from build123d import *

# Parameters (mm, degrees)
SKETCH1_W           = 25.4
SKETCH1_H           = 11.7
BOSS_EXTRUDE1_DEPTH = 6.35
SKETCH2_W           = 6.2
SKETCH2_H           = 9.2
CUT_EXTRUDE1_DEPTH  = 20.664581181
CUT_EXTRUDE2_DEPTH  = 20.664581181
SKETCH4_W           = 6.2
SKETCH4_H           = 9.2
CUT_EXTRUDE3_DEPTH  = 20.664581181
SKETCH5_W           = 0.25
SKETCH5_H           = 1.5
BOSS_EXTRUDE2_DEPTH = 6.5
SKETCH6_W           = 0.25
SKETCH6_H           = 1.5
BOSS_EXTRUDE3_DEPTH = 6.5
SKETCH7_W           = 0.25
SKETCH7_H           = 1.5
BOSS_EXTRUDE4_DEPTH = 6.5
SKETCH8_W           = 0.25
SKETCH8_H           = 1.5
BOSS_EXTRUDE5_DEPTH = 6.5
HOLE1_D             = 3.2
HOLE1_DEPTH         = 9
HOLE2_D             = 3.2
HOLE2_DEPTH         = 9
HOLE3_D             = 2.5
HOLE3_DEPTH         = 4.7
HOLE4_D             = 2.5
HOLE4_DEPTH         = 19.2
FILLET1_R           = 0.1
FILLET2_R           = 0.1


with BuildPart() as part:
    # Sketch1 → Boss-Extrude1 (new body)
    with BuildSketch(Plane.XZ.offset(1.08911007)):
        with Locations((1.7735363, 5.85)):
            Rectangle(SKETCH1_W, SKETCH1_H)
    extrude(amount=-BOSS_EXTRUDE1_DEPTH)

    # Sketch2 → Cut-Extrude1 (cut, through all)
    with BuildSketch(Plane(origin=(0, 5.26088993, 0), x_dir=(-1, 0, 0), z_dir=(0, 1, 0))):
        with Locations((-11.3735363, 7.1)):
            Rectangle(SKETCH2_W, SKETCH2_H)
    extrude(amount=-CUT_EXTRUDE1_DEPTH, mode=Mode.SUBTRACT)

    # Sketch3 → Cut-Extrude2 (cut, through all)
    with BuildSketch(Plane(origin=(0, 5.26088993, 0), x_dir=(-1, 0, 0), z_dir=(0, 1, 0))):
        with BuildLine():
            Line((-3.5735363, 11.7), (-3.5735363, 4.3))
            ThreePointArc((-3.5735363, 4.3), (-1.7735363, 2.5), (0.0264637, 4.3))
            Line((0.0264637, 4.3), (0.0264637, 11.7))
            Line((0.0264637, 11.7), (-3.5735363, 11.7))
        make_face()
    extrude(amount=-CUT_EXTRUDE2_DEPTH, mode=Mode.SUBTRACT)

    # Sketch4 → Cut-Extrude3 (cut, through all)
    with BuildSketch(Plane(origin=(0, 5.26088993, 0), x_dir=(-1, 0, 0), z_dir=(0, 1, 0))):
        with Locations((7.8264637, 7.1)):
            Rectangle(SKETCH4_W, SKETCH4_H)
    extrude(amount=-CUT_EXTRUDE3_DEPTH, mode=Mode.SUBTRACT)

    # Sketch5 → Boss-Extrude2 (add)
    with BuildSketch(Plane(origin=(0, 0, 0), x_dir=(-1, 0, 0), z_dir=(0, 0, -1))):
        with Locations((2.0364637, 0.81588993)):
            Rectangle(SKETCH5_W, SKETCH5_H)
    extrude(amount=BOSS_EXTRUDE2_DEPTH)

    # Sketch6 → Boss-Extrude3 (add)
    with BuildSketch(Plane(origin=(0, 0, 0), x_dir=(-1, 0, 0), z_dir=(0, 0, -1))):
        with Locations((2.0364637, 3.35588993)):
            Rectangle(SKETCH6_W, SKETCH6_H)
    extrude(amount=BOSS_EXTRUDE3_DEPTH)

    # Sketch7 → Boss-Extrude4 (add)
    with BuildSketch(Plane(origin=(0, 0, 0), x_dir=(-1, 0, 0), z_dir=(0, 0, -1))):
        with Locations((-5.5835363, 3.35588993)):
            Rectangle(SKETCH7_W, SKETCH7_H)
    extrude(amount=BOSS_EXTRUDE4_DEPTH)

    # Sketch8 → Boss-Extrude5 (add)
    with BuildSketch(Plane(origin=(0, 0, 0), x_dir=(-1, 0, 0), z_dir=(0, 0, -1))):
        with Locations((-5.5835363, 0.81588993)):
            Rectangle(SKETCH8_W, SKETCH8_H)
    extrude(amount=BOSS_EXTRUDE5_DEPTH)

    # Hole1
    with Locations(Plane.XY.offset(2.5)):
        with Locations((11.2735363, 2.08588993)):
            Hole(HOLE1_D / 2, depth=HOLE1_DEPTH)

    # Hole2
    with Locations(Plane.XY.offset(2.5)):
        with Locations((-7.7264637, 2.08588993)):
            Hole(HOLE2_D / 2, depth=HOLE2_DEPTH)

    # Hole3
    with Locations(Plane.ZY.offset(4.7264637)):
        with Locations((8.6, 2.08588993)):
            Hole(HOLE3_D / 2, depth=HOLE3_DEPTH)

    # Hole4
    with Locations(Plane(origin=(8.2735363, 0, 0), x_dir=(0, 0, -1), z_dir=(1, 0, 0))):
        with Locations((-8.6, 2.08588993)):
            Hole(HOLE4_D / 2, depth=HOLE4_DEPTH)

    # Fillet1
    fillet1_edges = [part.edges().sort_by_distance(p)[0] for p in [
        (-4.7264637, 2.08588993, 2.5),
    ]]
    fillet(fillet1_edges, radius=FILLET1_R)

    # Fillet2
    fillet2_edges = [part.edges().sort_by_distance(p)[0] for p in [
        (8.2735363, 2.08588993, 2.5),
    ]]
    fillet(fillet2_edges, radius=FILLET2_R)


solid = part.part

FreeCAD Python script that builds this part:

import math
import FreeCAD as App
import Part
import Sketcher


def edges_at(feature, points):
    """Names of the edges that pass closest to the given points."""
    edges = feature.Shape.Edges
    near = lambda p: min(range(len(edges)), key=lambda i: edges[i].distToShape(Part.Vertex(*p))[0])
    return sorted({f"Edge{near(p) + 1}" for p in points})

doc = App.newDocument("Part")
body = doc.addObject("PartDesign::Body", "Body")

# Sketch on XZ plane
sketch1 = body.newObject("Sketcher::SketchObject", "Sketch")
sketch1.AttachmentSupport = (doc.getObject("XZ_Plane"), [""])
sketch1.MapMode = "FlatFace"
sketch1.AttachmentOffset = App.Placement(App.Vector(0, 0, 1.08911), App.Rotation())
sketch1.addGeometry(Part.LineSegment(App.Vector(-11, 12, 0), App.Vector(-11, 0, 0)), False)
sketch1.addGeometry(Part.LineSegment(App.Vector(-11, 0, 0), App.Vector(14, 0, 0)), False)
sketch1.addGeometry(Part.LineSegment(App.Vector(14, 0, 0), App.Vector(14, 12, 0)), False)
sketch1.addGeometry(Part.LineSegment(App.Vector(14, 12, 0), App.Vector(-11, 12, 0)), False)
sketch1.addConstraint(Sketcher.Constraint("Coincident", 0, 2, 1, 1))
sketch1.addConstraint(Sketcher.Constraint("Coincident", 1, 2, 2, 1))
sketch1.addConstraint(Sketcher.Constraint("Coincident", 2, 2, 3, 1))
sketch1.addConstraint(Sketcher.Constraint("Coincident", 3, 2, 0, 1))
sketch1.addConstraint(Sketcher.Constraint("Vertical", 0))
sketch1.addConstraint(Sketcher.Constraint("Horizontal", 1))
sketch1.addConstraint(Sketcher.Constraint("Vertical", 2))
sketch1.addConstraint(Sketcher.Constraint("Horizontal", 3))
sketch1.addConstraint(Sketcher.Constraint("PointOnObject", 0, 2, -1))
sketch1.addConstraint(Sketcher.Constraint("DistanceX", 1, 1, 1, 2, 25.4))
sketch1.addConstraint(Sketcher.Constraint("DistanceY", 0, 2, 0, 1, 11.7))
sketch1.addConstraint(Sketcher.Constraint("DistanceX", 0, 2, -1, 1, 10.926464))
pad1 = body.newObject("PartDesign::Pad", "Pad")
pad1.Profile = sketch1
pad1.Length = 6.35
pad1.Reversed = True

# Sketch on XZ plane
sketch2 = body.newObject("Sketcher::SketchObject", "Sketch001")
sketch2.AttachmentSupport = (doc.getObject("XZ_Plane"), [""])
sketch2.MapMode = "FlatFace"
sketch2.AttachmentOffset = App.Placement(App.Vector(0, 0, -5.26089), App.Rotation())
sketch2.addGeometry(Part.LineSegment(App.Vector(14, 12, 0), App.Vector(14, 2, 0)), False)
sketch2.addGeometry(Part.LineSegment(App.Vector(14, 2, 0), App.Vector(8, 2, 0)), False)
sketch2.addGeometry(Part.LineSegment(App.Vector(8, 2, 0), App.Vector(8, 12, 0)), False)
sketch2.addGeometry(Part.LineSegment(App.Vector(8, 12, 0), App.Vector(14, 12, 0)), False)
sketch2.addConstraint(Sketcher.Constraint("Coincident", 0, 2, 1, 1))
sketch2.addConstraint(Sketcher.Constraint("Coincident", 1, 2, 2, 1))
sketch2.addConstraint(Sketcher.Constraint("Coincident", 2, 2, 3, 1))
sketch2.addConstraint(Sketcher.Constraint("Coincident", 3, 2, 0, 1))
sketch2.addConstraint(Sketcher.Constraint("Vertical", 0))
sketch2.addConstraint(Sketcher.Constraint("Horizontal", 1))
sketch2.addConstraint(Sketcher.Constraint("Vertical", 2))
sketch2.addConstraint(Sketcher.Constraint("Horizontal", 3))
sketch2.addConstraint(Sketcher.Constraint("DistanceX", 1, 2, 1, 1, 6.2))
sketch2.addConstraint(Sketcher.Constraint("DistanceY", 0, 2, 0, 1, 9.2))
sketch2.addConstraint(Sketcher.Constraint("DistanceY", -1, 1, 0, 2, 2.5))
sketch2.addConstraint(Sketcher.Constraint("DistanceX", -1, 1, 0, 2, 14.473536))
pocket1 = body.newObject("PartDesign::Pocket", "Pocket")
pocket1.Profile = sketch2
pocket1.Type = "ThroughAll"
pocket1.Reversed = True

# Sketch on XZ plane
sketch3 = body.newObject("Sketcher::SketchObject", "Sketch002")
sketch3.AttachmentSupport = (doc.getObject("XZ_Plane"), [""])
sketch3.MapMode = "FlatFace"
sketch3.AttachmentOffset = App.Placement(App.Vector(0, 0, -5.26089), App.Rotation())
sketch3.addGeometry(Part.LineSegment(App.Vector(3.6, 11.7, 0), App.Vector(3.6, 4.3, 0)), False)
sketch3.addGeometry(Part.ArcOfCircle(Part.Circle(App.Vector(1.8, 4.3, 0), App.Vector(0, 0, 1), 1.8), math.radians(180), math.radians(360)), False)
sketch3.addGeometry(Part.LineSegment(App.Vector(0, 4.3, 0), App.Vector(0, 11.7, 0)), False)
sketch3.addGeometry(Part.LineSegment(App.Vector(0, 11.7, 0), App.Vector(3.6, 11.7, 0)), False)
sketch3.addConstraint(Sketcher.Constraint("Tangent", 0, 2, 1, 2))
sketch3.addConstraint(Sketcher.Constraint("Tangent", 1, 1, 2, 1))
sketch3.addConstraint(Sketcher.Constraint("Coincident", 2, 2, 3, 1))
sketch3.addConstraint(Sketcher.Constraint("Coincident", 3, 2, 0, 1))
sketch3.addConstraint(Sketcher.Constraint("Vertical", 0))
sketch3.addConstraint(Sketcher.Constraint("Vertical", 2))
sketch3.addConstraint(Sketcher.Constraint("Horizontal", 3))
sketch3.addConstraint(Sketcher.Constraint("Radius", 1, 1.8))
sketch3.addConstraint(Sketcher.Constraint("DistanceY", 0, 2, 0, 1, 7.4))
sketch3.addConstraint(Sketcher.Constraint("DistanceY", -1, 1, 1, 3, 4.3))
sketch3.addConstraint(Sketcher.Constraint("DistanceX", -1, 1, 1, 3, 1.773536))
pocket2 = body.newObject("PartDesign::Pocket", "Pocket001")
pocket2.Profile = sketch3
pocket2.Type = "ThroughAll"
pocket2.Reversed = True

# Sketch on XZ plane
sketch4 = body.newObject("Sketcher::SketchObject", "Sketch003")
sketch4.AttachmentSupport = (doc.getObject("XZ_Plane"), [""])
sketch4.MapMode = "FlatFace"
sketch4.AttachmentOffset = App.Placement(App.Vector(0, 0, -5.26089), App.Rotation())
sketch4.addGeometry(Part.LineSegment(App.Vector(-5, 12, 0), App.Vector(-5, 2, 0)), False)
sketch4.addGeometry(Part.LineSegment(App.Vector(-5, 2, 0), App.Vector(-11, 2, 0)), False)
sketch4.addGeometry(Part.LineSegment(App.Vector(-11, 2, 0), App.Vector(-11, 12, 0)), False)
sketch4.addGeometry(Part.LineSegment(App.Vector(-11, 12, 0), App.Vector(-5, 12, 0)), False)
sketch4.addConstraint(Sketcher.Constraint("Coincident", 0, 2, 1, 1))
sketch4.addConstraint(Sketcher.Constraint("Coincident", 1, 2, 2, 1))
sketch4.addConstraint(Sketcher.Constraint("Coincident", 2, 2, 3, 1))
sketch4.addConstraint(Sketcher.Constraint("Coincident", 3, 2, 0, 1))
sketch4.addConstraint(Sketcher.Constraint("Vertical", 0))
sketch4.addConstraint(Sketcher.Constraint("Horizontal", 1))
sketch4.addConstraint(Sketcher.Constraint("Vertical", 2))
sketch4.addConstraint(Sketcher.Constraint("Horizontal", 3))
sketch4.addConstraint(Sketcher.Constraint("DistanceX", 1, 2, 1, 1, 6.2))
sketch4.addConstraint(Sketcher.Constraint("DistanceY", 0, 2, 0, 1, 9.2))
sketch4.addConstraint(Sketcher.Constraint("DistanceY", -1, 1, 0, 2, 2.5))
sketch4.addConstraint(Sketcher.Constraint("DistanceX", 0, 2, -1, 1, 4.726464))
pocket3 = body.newObject("PartDesign::Pocket", "Pocket002")
pocket3.Profile = sketch4
pocket3.Type = "ThroughAll"
pocket3.Reversed = True

# Sketch on XY plane
sketch5 = body.newObject("Sketcher::SketchObject", "Sketch004")
sketch5.AttachmentSupport = (doc.getObject("XY_Plane"), [""])
sketch5.MapMode = "FlatFace"
sketch5.addGeometry(Part.LineSegment(App.Vector(-1.91, 1.57, 0), App.Vector(-1.91, 0.07, 0)), False)
sketch5.addGeometry(Part.LineSegment(App.Vector(-1.91, 0.07, 0), App.Vector(-2.16, 0.07, 0)), False)
sketch5.addGeometry(Part.LineSegment(App.Vector(-2.16, 0.07, 0), App.Vector(-2.16, 1.57, 0)), False)
sketch5.addGeometry(Part.LineSegment(App.Vector(-2.16, 1.57, 0), App.Vector(-1.91, 1.57, 0)), False)
sketch5.addConstraint(Sketcher.Constraint("Coincident", 0, 2, 1, 1))
sketch5.addConstraint(Sketcher.Constraint("Coincident", 1, 2, 2, 1))
sketch5.addConstraint(Sketcher.Constraint("Coincident", 2, 2, 3, 1))
sketch5.addConstraint(Sketcher.Constraint("Coincident", 3, 2, 0, 1))
sketch5.addConstraint(Sketcher.Constraint("Vertical", 0))
sketch5.addConstraint(Sketcher.Constraint("Horizontal", 1))
sketch5.addConstraint(Sketcher.Constraint("Vertical", 2))
sketch5.addConstraint(Sketcher.Constraint("Horizontal", 3))
sketch5.addConstraint(Sketcher.Constraint("DistanceY", 0, 2, 0, 1, 1.5))
sketch5.addConstraint(Sketcher.Constraint("DistanceX", 1, 2, 1, 1, 0.25))
sketch5.addConstraint(Sketcher.Constraint("DistanceY", -1, 1, 0, 2, 0.06589))
sketch5.addConstraint(Sketcher.Constraint("DistanceX", 0, 2, -1, 1, 1.911464))
pad2 = body.newObject("PartDesign::Pad", "Pad001")
pad2.Profile = sketch5
pad2.Length = 6.5
pad2.Reversed = True

# Sketch on XY plane
sketch6 = body.newObject("Sketcher::SketchObject", "Sketch005")
sketch6.AttachmentSupport = (doc.getObject("XY_Plane"), [""])
sketch6.MapMode = "FlatFace"
sketch6.addGeometry(Part.LineSegment(App.Vector(-1.91, 4.11, 0), App.Vector(-1.91, 2.61, 0)), False)
sketch6.addGeometry(Part.LineSegment(App.Vector(-1.91, 2.61, 0), App.Vector(-2.16, 2.61, 0)), False)
sketch6.addGeometry(Part.LineSegment(App.Vector(-2.16, 2.61, 0), App.Vector(-2.16, 4.11, 0)), False)
sketch6.addGeometry(Part.LineSegment(App.Vector(-2.16, 4.11, 0), App.Vector(-1.91, 4.11, 0)), False)
sketch6.addConstraint(Sketcher.Constraint("Coincident", 0, 2, 1, 1))
sketch6.addConstraint(Sketcher.Constraint("Coincident", 1, 2, 2, 1))
sketch6.addConstraint(Sketcher.Constraint("Coincident", 2, 2, 3, 1))
sketch6.addConstraint(Sketcher.Constraint("Coincident", 3, 2, 0, 1))
sketch6.addConstraint(Sketcher.Constraint("Vertical", 0))
sketch6.addConstraint(Sketcher.Constraint("Horizontal", 1))
sketch6.addConstraint(Sketcher.Constraint("Vertical", 2))
sketch6.addConstraint(Sketcher.Constraint("Horizontal", 3))
sketch6.addConstraint(Sketcher.Constraint("DistanceY", 0, 2, 0, 1, 1.5))
sketch6.addConstraint(Sketcher.Constraint("DistanceX", 1, 2, 1, 1, 0.25))
sketch6.addConstraint(Sketcher.Constraint("DistanceY", -1, 1, 0, 2, 2.60589))
sketch6.addConstraint(Sketcher.Constraint("DistanceX", 0, 2, -1, 1, 1.911464))
pad3 = body.newObject("PartDesign::Pad", "Pad002")
pad3.Profile = sketch6
pad3.Length = 6.5
pad3.Reversed = True

# Sketch on XY plane
sketch7 = body.newObject("Sketcher::SketchObject", "Sketch006")
sketch7.AttachmentSupport = (doc.getObject("XY_Plane"), [""])
sketch7.MapMode = "FlatFace"
sketch7.addGeometry(Part.LineSegment(App.Vector(5.71, 4.11, 0), App.Vector(5.71, 2.61, 0)), False)
sketch7.addGeometry(Part.LineSegment(App.Vector(5.71, 2.61, 0), App.Vector(5.46, 2.61, 0)), False)
sketch7.addGeometry(Part.LineSegment(App.Vector(5.46, 2.61, 0), App.Vector(5.46, 4.11, 0)), False)
sketch7.addGeometry(Part.LineSegment(App.Vector(5.46, 4.11, 0), App.Vector(5.71, 4.11, 0)), False)
sketch7.addConstraint(Sketcher.Constraint("Coincident", 0, 2, 1, 1))
sketch7.addConstraint(Sketcher.Constraint("Coincident", 1, 2, 2, 1))
sketch7.addConstraint(Sketcher.Constraint("Coincident", 2, 2, 3, 1))
sketch7.addConstraint(Sketcher.Constraint("Coincident", 3, 2, 0, 1))
sketch7.addConstraint(Sketcher.Constraint("Vertical", 0))
sketch7.addConstraint(Sketcher.Constraint("Horizontal", 1))
sketch7.addConstraint(Sketcher.Constraint("Vertical", 2))
sketch7.addConstraint(Sketcher.Constraint("Horizontal", 3))
sketch7.addConstraint(Sketcher.Constraint("DistanceY", 0, 2, 0, 1, 1.5))
sketch7.addConstraint(Sketcher.Constraint("DistanceX", 1, 2, 1, 1, 0.25))
sketch7.addConstraint(Sketcher.Constraint("DistanceY", -1, 1, 0, 2, 2.60589))
sketch7.addConstraint(Sketcher.Constraint("DistanceX", -1, 1, 0, 2, 5.708536))
pad4 = body.newObject("PartDesign::Pad", "Pad003")
pad4.Profile = sketch7
pad4.Length = 6.5
pad4.Reversed = True

# Sketch on XY plane
sketch8 = body.newObject("Sketcher::SketchObject", "Sketch007")
sketch8.AttachmentSupport = (doc.getObject("XY_Plane"), [""])
sketch8.MapMode = "FlatFace"
sketch8.addGeometry(Part.LineSegment(App.Vector(5.71, 1.57, 0), App.Vector(5.71, 0.07, 0)), False)
sketch8.addGeometry(Part.LineSegment(App.Vector(5.71, 0.07, 0), App.Vector(5.46, 0.07, 0)), False)
sketch8.addGeometry(Part.LineSegment(App.Vector(5.46, 0.07, 0), App.Vector(5.46, 1.57, 0)), False)
sketch8.addGeometry(Part.LineSegment(App.Vector(5.46, 1.57, 0), App.Vector(5.71, 1.57, 0)), False)
sketch8.addConstraint(Sketcher.Constraint("Coincident", 0, 2, 1, 1))
sketch8.addConstraint(Sketcher.Constraint("Coincident", 1, 2, 2, 1))
sketch8.addConstraint(Sketcher.Constraint("Coincident", 2, 2, 3, 1))
sketch8.addConstraint(Sketcher.Constraint("Coincident", 3, 2, 0, 1))
sketch8.addConstraint(Sketcher.Constraint("Vertical", 0))
sketch8.addConstraint(Sketcher.Constraint("Horizontal", 1))
sketch8.addConstraint(Sketcher.Constraint("Vertical", 2))
sketch8.addConstraint(Sketcher.Constraint("Horizontal", 3))
sketch8.addConstraint(Sketcher.Constraint("DistanceY", 0, 2, 0, 1, 1.5))
sketch8.addConstraint(Sketcher.Constraint("DistanceX", 1, 2, 1, 1, 0.25))
sketch8.addConstraint(Sketcher.Constraint("DistanceY", -1, 1, 0, 2, 0.06589))
sketch8.addConstraint(Sketcher.Constraint("DistanceX", -1, 1, 0, 2, 5.708536))
pad5 = body.newObject("PartDesign::Pad", "Pad004")
pad5.Profile = sketch8
pad5.Length = 6.5
pad5.Reversed = True

# Sketch on XY plane
sketch9 = body.newObject("Sketcher::SketchObject", "Sketch008")
sketch9.AttachmentSupport = (doc.getObject("XY_Plane"), [""])
sketch9.MapMode = "FlatFace"
sketch9.AttachmentOffset = App.Placement(App.Vector(0, 0, 2.5), App.Rotation())
sketch9.addGeometry(Part.Circle(App.Vector(11.3, 2.1, 0), App.Vector(0, 0, 1), 1.6), False)
sketch9.addConstraint(Sketcher.Constraint("Diameter", 0, 3.2))
sketch9.addConstraint(Sketcher.Constraint("DistanceY", -1, 1, 0, 3, 2.08589))
sketch9.addConstraint(Sketcher.Constraint("DistanceX", -1, 1, 0, 3, 11.273536))
doc.recompute()
hole = body.newObject("PartDesign::Hole", "Hole")
hole.Profile = sketch9
hole.ThreadType = "None"
hole.Diameter = 3.2
hole.DepthType = "Dimension"
hole.Depth = 9
hole.DrillPoint = "Flat"

# Sketch on XY plane
sketch10 = body.newObject("Sketcher::SketchObject", "Sketch009")
sketch10.AttachmentSupport = (doc.getObject("XY_Plane"), [""])
sketch10.MapMode = "FlatFace"
sketch10.AttachmentOffset = App.Placement(App.Vector(0, 0, 2.5), App.Rotation())
sketch10.addGeometry(Part.Circle(App.Vector(-7.7, 2.1, 0), App.Vector(0, 0, 1), 1.6), False)
sketch10.addConstraint(Sketcher.Constraint("Diameter", 0, 3.2))
sketch10.addConstraint(Sketcher.Constraint("DistanceY", -1, 1, 0, 3, 2.08589))
sketch10.addConstraint(Sketcher.Constraint("DistanceX", 0, 3, -1, 1, 7.726464))
doc.recompute()
hole2 = body.newObject("PartDesign::Hole", "Hole001")
hole2.Profile = sketch10
hole2.ThreadType = "None"
hole2.Diameter = 3.2
hole2.DepthType = "Dimension"
hole2.Depth = 9
hole2.DrillPoint = "Flat"

# Sketch on YZ plane
sketch11 = body.newObject("Sketcher::SketchObject", "Sketch010")
sketch11.AttachmentSupport = (doc.getObject("YZ_Plane"), [""])
sketch11.MapMode = "FlatFace"
sketch11.AttachmentOffset = App.Placement(App.Vector(0, 0, -4.726464), App.Rotation())
sketch11.addGeometry(Part.Circle(App.Vector(2.1, 8.6, 0), App.Vector(0, 0, 1), 1.2), False)
sketch11.addConstraint(Sketcher.Constraint("Diameter", 0, 2.5))
sketch11.addConstraint(Sketcher.Constraint("DistanceY", -1, 1, 0, 3, 8.6))
sketch11.addConstraint(Sketcher.Constraint("DistanceX", -1, 1, 0, 3, 2.08589))
doc.recompute()
hole3 = body.newObject("PartDesign::Hole", "Hole002")
hole3.Profile = sketch11
hole3.ThreadType = "None"
hole3.Diameter = 2.5
hole3.DepthType = "Dimension"
hole3.Depth = 4.7
hole3.DrillPoint = "Flat"
hole3.Reversed = True

# Sketch on YZ plane
sketch12 = body.newObject("Sketcher::SketchObject", "Sketch011")
sketch12.AttachmentSupport = (doc.getObject("YZ_Plane"), [""])
sketch12.MapMode = "FlatFace"
sketch12.AttachmentOffset = App.Placement(App.Vector(0, 0, 8.273536), App.Rotation())
sketch12.addGeometry(Part.Circle(App.Vector(2.1, 8.6, 0), App.Vector(0, 0, 1), 1.2), False)
sketch12.addConstraint(Sketcher.Constraint("Diameter", 0, 2.5))
sketch12.addConstraint(Sketcher.Constraint("DistanceY", -1, 1, 0, 3, 8.6))
sketch12.addConstraint(Sketcher.Constraint("DistanceX", -1, 1, 0, 3, 2.08589))
doc.recompute()
hole4 = body.newObject("PartDesign::Hole", "Hole003")
hole4.Profile = sketch12
hole4.ThreadType = "None"
hole4.Diameter = 2.5
hole4.DepthType = "Dimension"
hole4.Depth = 19.2
hole4.DrillPoint = "Flat"
doc.recompute()

fillet = body.newObject("PartDesign::Fillet", "Fillet")
fillet.Base = (hole4, edges_at(hole4, [(-4.726, 2.086, 2.5)]))
fillet.Radius = 0.1
doc.recompute()

fillet2 = body.newObject("PartDesign::Fillet", "Fillet001")
fillet2.Base = (fillet, edges_at(fillet, [(8.274, 2.086, 2.5)]))
fillet2.Radius = 0.1

doc.recompute()
